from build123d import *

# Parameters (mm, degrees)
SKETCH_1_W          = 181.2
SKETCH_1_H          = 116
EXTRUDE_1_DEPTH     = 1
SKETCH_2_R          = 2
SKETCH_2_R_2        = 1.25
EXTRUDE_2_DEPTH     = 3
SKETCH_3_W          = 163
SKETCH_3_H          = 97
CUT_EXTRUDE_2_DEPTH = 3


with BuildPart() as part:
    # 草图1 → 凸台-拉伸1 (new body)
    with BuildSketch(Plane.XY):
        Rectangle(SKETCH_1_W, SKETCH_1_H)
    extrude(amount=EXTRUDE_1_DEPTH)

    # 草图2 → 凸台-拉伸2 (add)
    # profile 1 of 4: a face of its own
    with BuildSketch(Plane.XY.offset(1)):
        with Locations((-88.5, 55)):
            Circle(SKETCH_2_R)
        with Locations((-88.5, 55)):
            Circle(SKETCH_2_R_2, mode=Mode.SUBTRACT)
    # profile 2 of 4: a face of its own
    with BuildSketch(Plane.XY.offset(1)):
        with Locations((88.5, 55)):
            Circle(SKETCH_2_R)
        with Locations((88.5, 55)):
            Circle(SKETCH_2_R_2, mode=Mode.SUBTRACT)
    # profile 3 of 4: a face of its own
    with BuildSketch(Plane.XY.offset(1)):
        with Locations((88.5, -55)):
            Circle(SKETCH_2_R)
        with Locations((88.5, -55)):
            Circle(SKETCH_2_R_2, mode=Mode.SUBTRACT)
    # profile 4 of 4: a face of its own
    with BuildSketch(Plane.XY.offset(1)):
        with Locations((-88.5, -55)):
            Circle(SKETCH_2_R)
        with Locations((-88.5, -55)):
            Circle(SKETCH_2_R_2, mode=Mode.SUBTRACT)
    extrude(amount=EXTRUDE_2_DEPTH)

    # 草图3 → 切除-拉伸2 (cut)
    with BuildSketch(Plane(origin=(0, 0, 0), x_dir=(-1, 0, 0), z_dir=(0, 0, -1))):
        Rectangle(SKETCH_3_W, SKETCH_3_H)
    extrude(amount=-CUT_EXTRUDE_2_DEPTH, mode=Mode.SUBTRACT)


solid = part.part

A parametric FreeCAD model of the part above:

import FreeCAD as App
import Part
import Sketcher
from FreeCAD import Vector
Q = App.Units.Quantity


def add_polygon(sketch, points):
    """Adds a closed chain of lines whose ends are joined by coincident constraints."""
    first, n = sketch.GeometryCount, len(points)
    for a, b in zip(points, points[1:] + points[:1]):
        sketch.addGeometry(Part.LineSegment(App.Vector(*a, 0), App.Vector(*b, 0)), False)
    for i in range(n):
        sketch.addConstraint(Sketcher.Constraint("Coincident", first + i, 2, first + (i + 1) % n, 1))

doc = App.newDocument("Part")
body = doc.addObject("PartDesign::Body", "Body")

# Sketch on XY plane
sketch1 = body.newObject("Sketcher::SketchObject", "Sketch")
sketch1.AttachmentSupport = (doc.getObject("XY_Plane"), [""])
sketch1.MapMode = "FlatFace"
add_polygon(sketch1, [(-90.6, 58), (-90.6, -58), (90.6, -58), (90.6, 58)])  # lines 0-3
sketch1.addConstraint([
    Sketcher.Constraint("Vertical", 0),
    Sketcher.Constraint("Horizontal", 1),
    Sketcher.Constraint("Vertical", 2),
    Sketcher.Constraint("Horizontal", 3),
    Sketcher.Constraint("Symmetric", 0, 2, 2, 2, -1, 1),
    Sketcher.Constraint("DistanceY", 0, 2, 0, 1, Q("116 mm")),
    Sketcher.Constraint("DistanceX", 1, 1, 1, 2, Q("181.2 mm")),
])
pad1 = body.newObject("PartDesign::Pad", "Pad")
pad1.Profile = sketch1
pad1.Length = 1

# Sketch on XY plane
sketch2 = body.newObject("Sketcher::SketchObject", "Sketch001")
sketch2.AttachmentSupport = (doc.getObject("XY_Plane"), [""])
sketch2.MapMode = "FlatFace"
sketch2.AttachmentOffset = App.Placement(Vector(0, 0, 1), App.Rotation())
sketch2.addGeometry([
    Part.Circle(Vector(-88.5, 55, 0), Vector(0, 0, 1), 2),  # 0
    Part.Circle(Vector(-88.5, 55, 0), Vector(0, 0, 1), 1.25),  # 1
    Part.Circle(Vector(88.5, 55, 0), Vector(0, 0, 1), 2),  # 2
    Part.Circle(Vector(88.5, 55, 0), Vector(0, 0, 1), 1.25),  # 3
    Part.Circle(Vector(88.5, -55, 0), Vector(0, 0, 1), 2),  # 4
    Part.Circle(Vector(88.5, -55, 0), Vector(0, 0, 1), 1.25),  # 5
    Part.Circle(Vector(-88.5, -55, 0), Vector(0, 0, 1), 2),  # 6
    Part.Circle(Vector(-88.5, -55, 0), Vector(0, 0, 1), 1.25),  # 7
], False)
sketch2.addConstraint([
    Sketcher.Constraint("Coincident", 1, 3, 0, 3),
    Sketcher.Constraint("Coincident", 3, 3, 2, 3),
    Sketcher.Constraint("Coincident", 5, 3, 4, 3),
    Sketcher.Constraint("Coincident", 7, 3, 6, 3),
    Sketcher.Constraint("Equal", 0, 2),
    Sketcher.Constraint("Equal", 1, 3),
    Sketcher.Constraint("Equal", 2, 4),
    Sketcher.Constraint("Equal", 3, 5),
    Sketcher.Constraint("Equal", 4, 6),
    Sketcher.Constraint("Equal", 5, 7),
    Sketcher.Constraint("Symmetric", 0, 3, 4, 3, -1, 1),
    Sketcher.Constraint("Symmetric", 2, 3, 6, 3, -1, 1),
    Sketcher.Constraint("Symmetric", 0, 3, 2, 3, -2),
    Sketcher.Constraint("Diameter", 0, Q("4 mm")),
    Sketcher.Constraint("Diameter", 1, Q("2.5 mm")),
    Sketcher.Constraint("DistanceY", -1, 1, 0, 3, Q("55 mm")),
    Sketcher.Constraint("DistanceX", 0, 3, 2, 3, Q("177 mm")),
])
pad2 = body.newObject("PartDesign::Pad", "Pad001")
pad2.Profile = sketch2
pad2.Length = 3

# Sketch on XY plane
sketch3 = body.newObject("Sketcher::SketchObject", "Sketch002")
sketch3.AttachmentSupport = (doc.getObject("XY_Plane"), [""])
sketch3.MapMode = "FlatFace"
add_polygon(sketch3, [(81.5, 48.5), (81.5, -48.5), (-81.5, -48.5), (-81.5, 48.5)])  # lines 0-3
sketch3.addConstraint([
    Sketcher.Constraint("Vertical", 0),
    Sketcher.Constraint("Horizontal", 1),
    Sketcher.Constraint("Vertical", 2),
    Sketcher.Constraint("Horizontal", 3),
    Sketcher.Constraint("Symmetric", 0, 2, 2, 2, -1, 1),
    Sketcher.Constraint("DistanceX", 1, 2, 1, 1, Q("163 mm")),
    Sketcher.Constraint("DistanceY", 0, 2, 0, 1, Q("97 mm")),
])
pocket1 = body.newObject("PartDesign::Pocket", "Pocket")
pocket1.Profile = sketch3
pocket1.Length = 3
pocket1.Reversed = True

doc.recompute()
